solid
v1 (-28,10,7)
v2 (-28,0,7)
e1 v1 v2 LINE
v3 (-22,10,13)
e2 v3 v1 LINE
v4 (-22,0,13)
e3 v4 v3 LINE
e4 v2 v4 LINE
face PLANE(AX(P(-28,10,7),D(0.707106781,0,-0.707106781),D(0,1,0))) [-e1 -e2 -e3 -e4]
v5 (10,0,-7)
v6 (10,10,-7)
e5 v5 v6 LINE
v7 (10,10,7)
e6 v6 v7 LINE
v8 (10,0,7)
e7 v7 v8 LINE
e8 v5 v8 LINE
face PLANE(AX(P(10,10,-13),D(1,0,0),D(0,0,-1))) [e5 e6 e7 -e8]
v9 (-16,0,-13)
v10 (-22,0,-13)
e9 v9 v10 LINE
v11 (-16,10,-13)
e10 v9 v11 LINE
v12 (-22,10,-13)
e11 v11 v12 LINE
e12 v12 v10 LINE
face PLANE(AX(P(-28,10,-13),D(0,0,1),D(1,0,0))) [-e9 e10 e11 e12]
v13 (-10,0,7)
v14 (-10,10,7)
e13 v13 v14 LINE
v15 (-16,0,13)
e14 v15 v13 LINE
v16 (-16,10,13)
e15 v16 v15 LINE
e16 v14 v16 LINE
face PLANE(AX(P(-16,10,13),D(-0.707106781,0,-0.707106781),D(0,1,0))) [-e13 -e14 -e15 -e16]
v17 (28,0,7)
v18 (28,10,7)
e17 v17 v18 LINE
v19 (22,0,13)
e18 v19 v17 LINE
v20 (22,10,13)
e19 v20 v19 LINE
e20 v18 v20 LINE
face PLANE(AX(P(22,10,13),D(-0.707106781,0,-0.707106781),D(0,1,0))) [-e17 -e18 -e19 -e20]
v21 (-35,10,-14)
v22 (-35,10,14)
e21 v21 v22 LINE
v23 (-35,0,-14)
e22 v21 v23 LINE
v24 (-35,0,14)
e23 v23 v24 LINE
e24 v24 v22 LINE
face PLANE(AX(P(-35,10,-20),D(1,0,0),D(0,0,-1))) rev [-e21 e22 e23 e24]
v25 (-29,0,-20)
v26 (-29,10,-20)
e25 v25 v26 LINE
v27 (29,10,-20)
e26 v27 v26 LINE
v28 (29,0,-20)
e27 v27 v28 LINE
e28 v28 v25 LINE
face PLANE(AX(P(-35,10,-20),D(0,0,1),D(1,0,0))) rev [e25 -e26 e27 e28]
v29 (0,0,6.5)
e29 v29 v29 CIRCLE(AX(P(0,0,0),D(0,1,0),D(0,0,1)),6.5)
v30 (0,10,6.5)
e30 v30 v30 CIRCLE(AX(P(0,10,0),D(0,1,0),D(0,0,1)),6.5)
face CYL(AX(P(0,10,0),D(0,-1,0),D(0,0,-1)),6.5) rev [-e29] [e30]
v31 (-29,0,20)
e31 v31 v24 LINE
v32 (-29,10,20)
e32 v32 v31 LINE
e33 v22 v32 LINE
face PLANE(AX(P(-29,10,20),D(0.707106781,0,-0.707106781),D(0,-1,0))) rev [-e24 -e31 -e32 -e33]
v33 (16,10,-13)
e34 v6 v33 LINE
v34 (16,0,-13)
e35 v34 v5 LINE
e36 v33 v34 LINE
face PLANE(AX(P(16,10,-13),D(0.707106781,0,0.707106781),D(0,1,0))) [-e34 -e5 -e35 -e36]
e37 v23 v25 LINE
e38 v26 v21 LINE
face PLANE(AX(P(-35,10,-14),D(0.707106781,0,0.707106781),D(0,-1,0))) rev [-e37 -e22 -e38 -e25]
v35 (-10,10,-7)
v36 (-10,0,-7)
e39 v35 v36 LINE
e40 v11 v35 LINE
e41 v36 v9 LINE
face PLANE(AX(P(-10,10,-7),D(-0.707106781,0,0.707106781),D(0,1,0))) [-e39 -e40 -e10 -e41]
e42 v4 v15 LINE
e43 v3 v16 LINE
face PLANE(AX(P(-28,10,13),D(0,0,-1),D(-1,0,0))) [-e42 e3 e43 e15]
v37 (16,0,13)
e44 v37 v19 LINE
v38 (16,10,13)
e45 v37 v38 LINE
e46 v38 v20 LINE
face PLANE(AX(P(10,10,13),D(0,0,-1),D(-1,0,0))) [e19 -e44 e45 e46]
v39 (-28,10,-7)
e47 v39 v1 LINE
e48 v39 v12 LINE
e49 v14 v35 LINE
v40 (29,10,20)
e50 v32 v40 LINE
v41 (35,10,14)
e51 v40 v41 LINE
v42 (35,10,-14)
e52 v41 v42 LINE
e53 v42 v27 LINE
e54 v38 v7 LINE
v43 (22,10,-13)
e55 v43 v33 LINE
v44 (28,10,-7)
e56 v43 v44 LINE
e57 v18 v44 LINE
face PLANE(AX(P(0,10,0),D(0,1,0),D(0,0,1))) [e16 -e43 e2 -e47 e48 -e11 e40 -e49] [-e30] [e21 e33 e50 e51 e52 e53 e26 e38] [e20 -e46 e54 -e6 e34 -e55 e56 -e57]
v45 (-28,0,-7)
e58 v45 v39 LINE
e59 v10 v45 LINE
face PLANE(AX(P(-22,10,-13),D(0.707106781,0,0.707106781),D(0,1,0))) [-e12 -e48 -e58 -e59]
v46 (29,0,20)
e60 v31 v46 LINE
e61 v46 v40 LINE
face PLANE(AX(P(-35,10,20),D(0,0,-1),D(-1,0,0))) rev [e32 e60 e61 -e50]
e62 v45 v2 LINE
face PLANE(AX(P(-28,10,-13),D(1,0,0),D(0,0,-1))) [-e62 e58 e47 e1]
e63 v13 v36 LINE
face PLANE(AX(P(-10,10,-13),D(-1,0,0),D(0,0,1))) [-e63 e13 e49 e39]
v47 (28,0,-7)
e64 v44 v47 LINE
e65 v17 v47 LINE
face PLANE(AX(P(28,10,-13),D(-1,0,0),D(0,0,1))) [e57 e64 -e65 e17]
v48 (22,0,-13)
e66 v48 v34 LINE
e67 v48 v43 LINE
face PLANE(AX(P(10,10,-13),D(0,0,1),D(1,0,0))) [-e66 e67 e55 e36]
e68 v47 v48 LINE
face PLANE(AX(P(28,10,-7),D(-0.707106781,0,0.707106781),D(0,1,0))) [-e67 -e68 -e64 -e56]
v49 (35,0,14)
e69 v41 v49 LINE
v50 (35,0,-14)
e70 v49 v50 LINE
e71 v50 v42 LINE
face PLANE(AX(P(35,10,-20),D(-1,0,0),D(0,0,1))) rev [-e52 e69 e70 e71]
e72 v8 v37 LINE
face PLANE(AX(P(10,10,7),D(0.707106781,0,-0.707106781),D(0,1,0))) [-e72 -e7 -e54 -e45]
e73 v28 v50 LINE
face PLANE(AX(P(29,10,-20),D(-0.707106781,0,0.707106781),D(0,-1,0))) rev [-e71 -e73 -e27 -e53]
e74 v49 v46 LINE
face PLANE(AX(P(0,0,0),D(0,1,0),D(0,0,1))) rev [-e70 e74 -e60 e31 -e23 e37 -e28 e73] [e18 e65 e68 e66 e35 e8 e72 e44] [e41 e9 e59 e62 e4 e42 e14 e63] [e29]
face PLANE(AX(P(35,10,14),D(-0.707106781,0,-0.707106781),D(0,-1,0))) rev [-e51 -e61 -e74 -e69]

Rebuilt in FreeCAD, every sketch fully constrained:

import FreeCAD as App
import Part
import Sketcher

V = App.Vector


def edges_at(feature, points):
    """Names of the edges that pass closest to the given points."""
    edges = feature.Shape.Edges
    near = lambda p: min(range(len(edges)), key=lambda i: edges[i].distToShape(Part.Vertex(*p))[0])
    return sorted({f"Edge{near(p) + 1}" for p in points})

doc = App.newDocument("Part")
body = doc.addObject("PartDesign::Body", "Body")

# Sketch on XZ plane
sketch1 = body.newObject("Sketcher::SketchObject", "Sketch")
sketch1.AttachmentSupport = (doc.getObject("XZ_Plane"), [""])
sketch1.MapMode = "FlatFace"
sketch1.addGeometry([
    Part.LineSegment(V(-35, -20, 0), V(-35, 20, 0)),  # 0
    Part.LineSegment(V(-35, 20, 0), V(35, 20, 0)),  # 1
    Part.LineSegment(V(35, 20, 0), V(35, -20, 0)),  # 2
    Part.LineSegment(V(35, -20, 0), V(-35, -20, 0)),  # 3
    Part.LineSegment(V(-10, 13, 0), V(-28, 13, 0)),  # 4
    Part.LineSegment(V(-28, 13, 0), V(-28, -13, 0)),  # 5
    Part.LineSegment(V(-28, -13, 0), V(-10, -13, 0)),  # 6
    Part.LineSegment(V(-10, -13, 0), V(-10, 13, 0)),  # 7
    Part.Circle(V(0, 0, 0), V(0, 0, 1), 6),  # 8
    Part.LineSegment(V(28, 13, 0), V(10, 13, 0)),  # 9
    Part.LineSegment(V(10, 13, 0), V(10, -13, 0)),  # 10
    Part.LineSegment(V(10, -13, 0), V(28, -13, 0)),  # 11
    Part.LineSegment(V(28, -13, 0), V(28, 13, 0)),  # 12
], False)
sketch1.addConstraint([
    Sketcher.Constraint("Coincident", 0, 2, 1, 1),
    Sketcher.Constraint("Coincident", 1, 2, 2, 1),
    Sketcher.Constraint("Coincident", 2, 2, 3, 1),
    Sketcher.Constraint("Coincident", 3, 2, 0, 1),
    Sketcher.Constraint("Coincident", 4, 2, 5, 1),
    Sketcher.Constraint("Coincident", 5, 2, 6, 1),
    Sketcher.Constraint("Coincident", 6, 2, 7, 1),
    Sketcher.Constraint("Coincident", 7, 2, 4, 1),
    Sketcher.Constraint("Coincident", 9, 2, 10, 1),
    Sketcher.Constraint("Coincident", 10, 2, 11, 1),
    Sketcher.Constraint("Coincident", 11, 2, 12, 1),
    Sketcher.Constraint("Coincident", 12, 2, 9, 1),
    Sketcher.Constraint("Vertical", 0),
    Sketcher.Constraint("Horizontal", 1),
    Sketcher.Constraint("Vertical", 2),
    Sketcher.Constraint("Horizontal", 3),
    Sketcher.Constraint("Horizontal", 4),
    Sketcher.Constraint("Vertical", 5),
    Sketcher.Constraint("Horizontal", 6),
    Sketcher.Constraint("Vertical", 7),
    Sketcher.Constraint("Horizontal", 9),
    Sketcher.Constraint("Vertical", 10),
    Sketcher.Constraint("Horizontal", 11),
    Sketcher.Constraint("Vertical", 12),
    Sketcher.Constraint("Coincident", 8, 3, -1, 1),
    Sketcher.Constraint("Symmetric", 0, 2, 2, 2, -1, 1),
    Sketcher.Constraint("Symmetric", 6, 2, 9, 2, -1, 1),
    Sketcher.Constraint("Symmetric", 4, 2, 11, 2, -1, 1),
    Sketcher.Constraint("Horizontal", 7, 2, 9, 2),
    Sketcher.Constraint("Diameter", 8, 13.0),
    Sketcher.Constraint("DistanceX", 1, 1, 1, 2, 70.0),
    Sketcher.Constraint("DistanceX", 4, 2, 4, 1, 18.0),
    Sketcher.Constraint("DistanceY", 0, 1, 0, 2, 40.0),
    Sketcher.Constraint("DistanceY", 5, 2, 5, 1, 26.0),
    Sketcher.Constraint("DistanceX", 4, 2, -1, 1, 28.0),
])
pad1 = body.newObject("PartDesign::Pad", "Pad")
pad1.Profile = sketch1
pad1.Length = 10
pad1.Reversed = True
doc.recompute()

chamfer = body.newObject("PartDesign::Chamfer", "Chamfer")
chamfer.Base = (pad1, edges_at(pad1, [
    (-10, 5, 13),
    (-10, 5, -13),
    (-28, 5, -13),
    (-28, 5, 13),
    (28, 5, 13),
    (28, 5, -13),
    (10, 5, -13),
    (10, 5, 13),
    (35, 5, 20),
    (-35, 5, 20),
    (-35, 5, -20),
    (35, 5, -20),
]))
chamfer.Size = 6

doc.recompute()
